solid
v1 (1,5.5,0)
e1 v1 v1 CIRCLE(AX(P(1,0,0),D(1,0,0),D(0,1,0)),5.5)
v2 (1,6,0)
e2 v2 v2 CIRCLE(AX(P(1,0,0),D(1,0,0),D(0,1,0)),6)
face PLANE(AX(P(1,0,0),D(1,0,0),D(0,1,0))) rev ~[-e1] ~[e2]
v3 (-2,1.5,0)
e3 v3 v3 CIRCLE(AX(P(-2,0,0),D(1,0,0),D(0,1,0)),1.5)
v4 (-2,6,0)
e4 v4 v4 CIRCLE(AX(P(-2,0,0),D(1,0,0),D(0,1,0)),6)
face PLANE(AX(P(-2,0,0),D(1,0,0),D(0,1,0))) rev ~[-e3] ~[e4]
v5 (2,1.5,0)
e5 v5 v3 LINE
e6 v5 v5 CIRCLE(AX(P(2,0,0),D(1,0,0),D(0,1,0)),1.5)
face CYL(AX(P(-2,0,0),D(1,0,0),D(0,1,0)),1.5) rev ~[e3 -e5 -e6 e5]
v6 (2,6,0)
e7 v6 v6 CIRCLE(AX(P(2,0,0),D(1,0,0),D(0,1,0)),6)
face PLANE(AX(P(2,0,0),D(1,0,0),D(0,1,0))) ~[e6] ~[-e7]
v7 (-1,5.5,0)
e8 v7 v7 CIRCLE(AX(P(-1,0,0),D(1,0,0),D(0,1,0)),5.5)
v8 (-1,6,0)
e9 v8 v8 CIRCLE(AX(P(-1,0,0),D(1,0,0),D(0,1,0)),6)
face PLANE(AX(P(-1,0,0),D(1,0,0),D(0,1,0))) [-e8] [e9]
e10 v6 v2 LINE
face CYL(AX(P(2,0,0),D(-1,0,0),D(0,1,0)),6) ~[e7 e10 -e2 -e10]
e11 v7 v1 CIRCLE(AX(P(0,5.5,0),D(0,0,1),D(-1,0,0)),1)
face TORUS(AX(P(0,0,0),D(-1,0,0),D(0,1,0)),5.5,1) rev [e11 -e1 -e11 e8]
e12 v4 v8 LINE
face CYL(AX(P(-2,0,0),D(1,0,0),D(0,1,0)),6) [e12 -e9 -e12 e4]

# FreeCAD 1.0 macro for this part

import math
import FreeCAD as App
import Part
import Sketcher

V = App.Vector

doc = App.newDocument("Part")
body = doc.addObject("PartDesign::Body", "Body")

sketch1 = body.newObject("Sketcher::SketchObject", "Sketch")
sketch1.AttachmentSupport = (doc.getObject("XY_Plane"), [""])
sketch1.MapMode = "FlatFace"
sketch1.addGeometry(Part.LineSegment(V(-1, 6, 0), V(-2, 6, 0)), False)
sketch1.addGeometry(Part.LineSegment(V(-2, 6, 0), V(-2, 1.5, 0)), False)
sketch1.addGeometry(Part.LineSegment(V(-2, 1.5, 0), V(2, 1.5, 0)), False)
sketch1.addGeometry(Part.LineSegment(V(2, 1.5, 0), V(2, 6, 0)), False)
sketch1.addGeometry(Part.LineSegment(V(2, 6, 0), V(1, 6, 0)), False)
sketch1.addGeometry(Part.LineSegment(V(1, 6, 0), V(1, 5.5, 0)), False)
sketch1.addGeometry(Part.ArcOfCircle(Part.Circle(V(0, 5.5, 0), V(0, 0, 1), 1), math.radians(180), math.radians(360)), False)
sketch1.addGeometry(Part.LineSegment(V(-1, 5.5, 0), V(-1, 6, 0)), False)
sketch1.addConstraint(Sketcher.Constraint("Coincident", 0, 2, 1, 1))
sketch1.addConstraint(Sketcher.Constraint("Coincident", 1, 2, 2, 1))
sketch1.addConstraint(Sketcher.Constraint("Coincident", 2, 2, 3, 1))
sketch1.addConstraint(Sketcher.Constraint("Coincident", 3, 2, 4, 1))
sketch1.addConstraint(Sketcher.Constraint("Coincident", 4, 2, 5, 1))
sketch1.addConstraint(Sketcher.Constraint("Tangent", 5, 2, 6, 2))
sketch1.addConstraint(Sketcher.Constraint("Tangent", 6, 1, 7, 1))
sketch1.addConstraint(Sketcher.Constraint("Coincident", 7, 2, 0, 1))
sketch1.addConstraint(Sketcher.Constraint("Horizontal", 0))
sketch1.addConstraint(Sketcher.Constraint("Vertical", 1))
sketch1.addConstraint(Sketcher.Constraint("Horizontal", 2))
sketch1.addConstraint(Sketcher.Constraint("Vertical", 3))
sketch1.addConstraint(Sketcher.Constraint("Horizontal", 4))
sketch1.addConstraint(Sketcher.Constraint("Vertical", 5))
sketch1.addConstraint(Sketcher.Constraint("Vertical", 7))
sketch1.addConstraint(Sketcher.Constraint("Symmetric", 0, 2, 3, 2, -2))
sketch1.addConstraint(Sketcher.Constraint("PointOnObject", 6, 3, -2))
sketch1.addConstraint(Sketcher.Constraint("Radius", 6, 1.0))
sketch1.addConstraint(Sketcher.Constraint("DistanceX", 0, 2, 0, 1, 1.0))
sketch1.addConstraint(Sketcher.Constraint("DistanceY", 5, 2, 5, 1, 0.5))
sketch1.addConstraint(Sketcher.Constraint("DistanceY", -1, 1, 0, 2, 6.0))
sketch1.addConstraint(Sketcher.Constraint("DistanceY", -1, 1, 1, 2, 1.5))
revolution = body.newObject("PartDesign::Revolution", "Revolution")
revolution.Profile = sketch1
revolution.ReferenceAxis = (sketch1, ["H_Axis"])
revolution.Angle = 360

doc.recompute()
